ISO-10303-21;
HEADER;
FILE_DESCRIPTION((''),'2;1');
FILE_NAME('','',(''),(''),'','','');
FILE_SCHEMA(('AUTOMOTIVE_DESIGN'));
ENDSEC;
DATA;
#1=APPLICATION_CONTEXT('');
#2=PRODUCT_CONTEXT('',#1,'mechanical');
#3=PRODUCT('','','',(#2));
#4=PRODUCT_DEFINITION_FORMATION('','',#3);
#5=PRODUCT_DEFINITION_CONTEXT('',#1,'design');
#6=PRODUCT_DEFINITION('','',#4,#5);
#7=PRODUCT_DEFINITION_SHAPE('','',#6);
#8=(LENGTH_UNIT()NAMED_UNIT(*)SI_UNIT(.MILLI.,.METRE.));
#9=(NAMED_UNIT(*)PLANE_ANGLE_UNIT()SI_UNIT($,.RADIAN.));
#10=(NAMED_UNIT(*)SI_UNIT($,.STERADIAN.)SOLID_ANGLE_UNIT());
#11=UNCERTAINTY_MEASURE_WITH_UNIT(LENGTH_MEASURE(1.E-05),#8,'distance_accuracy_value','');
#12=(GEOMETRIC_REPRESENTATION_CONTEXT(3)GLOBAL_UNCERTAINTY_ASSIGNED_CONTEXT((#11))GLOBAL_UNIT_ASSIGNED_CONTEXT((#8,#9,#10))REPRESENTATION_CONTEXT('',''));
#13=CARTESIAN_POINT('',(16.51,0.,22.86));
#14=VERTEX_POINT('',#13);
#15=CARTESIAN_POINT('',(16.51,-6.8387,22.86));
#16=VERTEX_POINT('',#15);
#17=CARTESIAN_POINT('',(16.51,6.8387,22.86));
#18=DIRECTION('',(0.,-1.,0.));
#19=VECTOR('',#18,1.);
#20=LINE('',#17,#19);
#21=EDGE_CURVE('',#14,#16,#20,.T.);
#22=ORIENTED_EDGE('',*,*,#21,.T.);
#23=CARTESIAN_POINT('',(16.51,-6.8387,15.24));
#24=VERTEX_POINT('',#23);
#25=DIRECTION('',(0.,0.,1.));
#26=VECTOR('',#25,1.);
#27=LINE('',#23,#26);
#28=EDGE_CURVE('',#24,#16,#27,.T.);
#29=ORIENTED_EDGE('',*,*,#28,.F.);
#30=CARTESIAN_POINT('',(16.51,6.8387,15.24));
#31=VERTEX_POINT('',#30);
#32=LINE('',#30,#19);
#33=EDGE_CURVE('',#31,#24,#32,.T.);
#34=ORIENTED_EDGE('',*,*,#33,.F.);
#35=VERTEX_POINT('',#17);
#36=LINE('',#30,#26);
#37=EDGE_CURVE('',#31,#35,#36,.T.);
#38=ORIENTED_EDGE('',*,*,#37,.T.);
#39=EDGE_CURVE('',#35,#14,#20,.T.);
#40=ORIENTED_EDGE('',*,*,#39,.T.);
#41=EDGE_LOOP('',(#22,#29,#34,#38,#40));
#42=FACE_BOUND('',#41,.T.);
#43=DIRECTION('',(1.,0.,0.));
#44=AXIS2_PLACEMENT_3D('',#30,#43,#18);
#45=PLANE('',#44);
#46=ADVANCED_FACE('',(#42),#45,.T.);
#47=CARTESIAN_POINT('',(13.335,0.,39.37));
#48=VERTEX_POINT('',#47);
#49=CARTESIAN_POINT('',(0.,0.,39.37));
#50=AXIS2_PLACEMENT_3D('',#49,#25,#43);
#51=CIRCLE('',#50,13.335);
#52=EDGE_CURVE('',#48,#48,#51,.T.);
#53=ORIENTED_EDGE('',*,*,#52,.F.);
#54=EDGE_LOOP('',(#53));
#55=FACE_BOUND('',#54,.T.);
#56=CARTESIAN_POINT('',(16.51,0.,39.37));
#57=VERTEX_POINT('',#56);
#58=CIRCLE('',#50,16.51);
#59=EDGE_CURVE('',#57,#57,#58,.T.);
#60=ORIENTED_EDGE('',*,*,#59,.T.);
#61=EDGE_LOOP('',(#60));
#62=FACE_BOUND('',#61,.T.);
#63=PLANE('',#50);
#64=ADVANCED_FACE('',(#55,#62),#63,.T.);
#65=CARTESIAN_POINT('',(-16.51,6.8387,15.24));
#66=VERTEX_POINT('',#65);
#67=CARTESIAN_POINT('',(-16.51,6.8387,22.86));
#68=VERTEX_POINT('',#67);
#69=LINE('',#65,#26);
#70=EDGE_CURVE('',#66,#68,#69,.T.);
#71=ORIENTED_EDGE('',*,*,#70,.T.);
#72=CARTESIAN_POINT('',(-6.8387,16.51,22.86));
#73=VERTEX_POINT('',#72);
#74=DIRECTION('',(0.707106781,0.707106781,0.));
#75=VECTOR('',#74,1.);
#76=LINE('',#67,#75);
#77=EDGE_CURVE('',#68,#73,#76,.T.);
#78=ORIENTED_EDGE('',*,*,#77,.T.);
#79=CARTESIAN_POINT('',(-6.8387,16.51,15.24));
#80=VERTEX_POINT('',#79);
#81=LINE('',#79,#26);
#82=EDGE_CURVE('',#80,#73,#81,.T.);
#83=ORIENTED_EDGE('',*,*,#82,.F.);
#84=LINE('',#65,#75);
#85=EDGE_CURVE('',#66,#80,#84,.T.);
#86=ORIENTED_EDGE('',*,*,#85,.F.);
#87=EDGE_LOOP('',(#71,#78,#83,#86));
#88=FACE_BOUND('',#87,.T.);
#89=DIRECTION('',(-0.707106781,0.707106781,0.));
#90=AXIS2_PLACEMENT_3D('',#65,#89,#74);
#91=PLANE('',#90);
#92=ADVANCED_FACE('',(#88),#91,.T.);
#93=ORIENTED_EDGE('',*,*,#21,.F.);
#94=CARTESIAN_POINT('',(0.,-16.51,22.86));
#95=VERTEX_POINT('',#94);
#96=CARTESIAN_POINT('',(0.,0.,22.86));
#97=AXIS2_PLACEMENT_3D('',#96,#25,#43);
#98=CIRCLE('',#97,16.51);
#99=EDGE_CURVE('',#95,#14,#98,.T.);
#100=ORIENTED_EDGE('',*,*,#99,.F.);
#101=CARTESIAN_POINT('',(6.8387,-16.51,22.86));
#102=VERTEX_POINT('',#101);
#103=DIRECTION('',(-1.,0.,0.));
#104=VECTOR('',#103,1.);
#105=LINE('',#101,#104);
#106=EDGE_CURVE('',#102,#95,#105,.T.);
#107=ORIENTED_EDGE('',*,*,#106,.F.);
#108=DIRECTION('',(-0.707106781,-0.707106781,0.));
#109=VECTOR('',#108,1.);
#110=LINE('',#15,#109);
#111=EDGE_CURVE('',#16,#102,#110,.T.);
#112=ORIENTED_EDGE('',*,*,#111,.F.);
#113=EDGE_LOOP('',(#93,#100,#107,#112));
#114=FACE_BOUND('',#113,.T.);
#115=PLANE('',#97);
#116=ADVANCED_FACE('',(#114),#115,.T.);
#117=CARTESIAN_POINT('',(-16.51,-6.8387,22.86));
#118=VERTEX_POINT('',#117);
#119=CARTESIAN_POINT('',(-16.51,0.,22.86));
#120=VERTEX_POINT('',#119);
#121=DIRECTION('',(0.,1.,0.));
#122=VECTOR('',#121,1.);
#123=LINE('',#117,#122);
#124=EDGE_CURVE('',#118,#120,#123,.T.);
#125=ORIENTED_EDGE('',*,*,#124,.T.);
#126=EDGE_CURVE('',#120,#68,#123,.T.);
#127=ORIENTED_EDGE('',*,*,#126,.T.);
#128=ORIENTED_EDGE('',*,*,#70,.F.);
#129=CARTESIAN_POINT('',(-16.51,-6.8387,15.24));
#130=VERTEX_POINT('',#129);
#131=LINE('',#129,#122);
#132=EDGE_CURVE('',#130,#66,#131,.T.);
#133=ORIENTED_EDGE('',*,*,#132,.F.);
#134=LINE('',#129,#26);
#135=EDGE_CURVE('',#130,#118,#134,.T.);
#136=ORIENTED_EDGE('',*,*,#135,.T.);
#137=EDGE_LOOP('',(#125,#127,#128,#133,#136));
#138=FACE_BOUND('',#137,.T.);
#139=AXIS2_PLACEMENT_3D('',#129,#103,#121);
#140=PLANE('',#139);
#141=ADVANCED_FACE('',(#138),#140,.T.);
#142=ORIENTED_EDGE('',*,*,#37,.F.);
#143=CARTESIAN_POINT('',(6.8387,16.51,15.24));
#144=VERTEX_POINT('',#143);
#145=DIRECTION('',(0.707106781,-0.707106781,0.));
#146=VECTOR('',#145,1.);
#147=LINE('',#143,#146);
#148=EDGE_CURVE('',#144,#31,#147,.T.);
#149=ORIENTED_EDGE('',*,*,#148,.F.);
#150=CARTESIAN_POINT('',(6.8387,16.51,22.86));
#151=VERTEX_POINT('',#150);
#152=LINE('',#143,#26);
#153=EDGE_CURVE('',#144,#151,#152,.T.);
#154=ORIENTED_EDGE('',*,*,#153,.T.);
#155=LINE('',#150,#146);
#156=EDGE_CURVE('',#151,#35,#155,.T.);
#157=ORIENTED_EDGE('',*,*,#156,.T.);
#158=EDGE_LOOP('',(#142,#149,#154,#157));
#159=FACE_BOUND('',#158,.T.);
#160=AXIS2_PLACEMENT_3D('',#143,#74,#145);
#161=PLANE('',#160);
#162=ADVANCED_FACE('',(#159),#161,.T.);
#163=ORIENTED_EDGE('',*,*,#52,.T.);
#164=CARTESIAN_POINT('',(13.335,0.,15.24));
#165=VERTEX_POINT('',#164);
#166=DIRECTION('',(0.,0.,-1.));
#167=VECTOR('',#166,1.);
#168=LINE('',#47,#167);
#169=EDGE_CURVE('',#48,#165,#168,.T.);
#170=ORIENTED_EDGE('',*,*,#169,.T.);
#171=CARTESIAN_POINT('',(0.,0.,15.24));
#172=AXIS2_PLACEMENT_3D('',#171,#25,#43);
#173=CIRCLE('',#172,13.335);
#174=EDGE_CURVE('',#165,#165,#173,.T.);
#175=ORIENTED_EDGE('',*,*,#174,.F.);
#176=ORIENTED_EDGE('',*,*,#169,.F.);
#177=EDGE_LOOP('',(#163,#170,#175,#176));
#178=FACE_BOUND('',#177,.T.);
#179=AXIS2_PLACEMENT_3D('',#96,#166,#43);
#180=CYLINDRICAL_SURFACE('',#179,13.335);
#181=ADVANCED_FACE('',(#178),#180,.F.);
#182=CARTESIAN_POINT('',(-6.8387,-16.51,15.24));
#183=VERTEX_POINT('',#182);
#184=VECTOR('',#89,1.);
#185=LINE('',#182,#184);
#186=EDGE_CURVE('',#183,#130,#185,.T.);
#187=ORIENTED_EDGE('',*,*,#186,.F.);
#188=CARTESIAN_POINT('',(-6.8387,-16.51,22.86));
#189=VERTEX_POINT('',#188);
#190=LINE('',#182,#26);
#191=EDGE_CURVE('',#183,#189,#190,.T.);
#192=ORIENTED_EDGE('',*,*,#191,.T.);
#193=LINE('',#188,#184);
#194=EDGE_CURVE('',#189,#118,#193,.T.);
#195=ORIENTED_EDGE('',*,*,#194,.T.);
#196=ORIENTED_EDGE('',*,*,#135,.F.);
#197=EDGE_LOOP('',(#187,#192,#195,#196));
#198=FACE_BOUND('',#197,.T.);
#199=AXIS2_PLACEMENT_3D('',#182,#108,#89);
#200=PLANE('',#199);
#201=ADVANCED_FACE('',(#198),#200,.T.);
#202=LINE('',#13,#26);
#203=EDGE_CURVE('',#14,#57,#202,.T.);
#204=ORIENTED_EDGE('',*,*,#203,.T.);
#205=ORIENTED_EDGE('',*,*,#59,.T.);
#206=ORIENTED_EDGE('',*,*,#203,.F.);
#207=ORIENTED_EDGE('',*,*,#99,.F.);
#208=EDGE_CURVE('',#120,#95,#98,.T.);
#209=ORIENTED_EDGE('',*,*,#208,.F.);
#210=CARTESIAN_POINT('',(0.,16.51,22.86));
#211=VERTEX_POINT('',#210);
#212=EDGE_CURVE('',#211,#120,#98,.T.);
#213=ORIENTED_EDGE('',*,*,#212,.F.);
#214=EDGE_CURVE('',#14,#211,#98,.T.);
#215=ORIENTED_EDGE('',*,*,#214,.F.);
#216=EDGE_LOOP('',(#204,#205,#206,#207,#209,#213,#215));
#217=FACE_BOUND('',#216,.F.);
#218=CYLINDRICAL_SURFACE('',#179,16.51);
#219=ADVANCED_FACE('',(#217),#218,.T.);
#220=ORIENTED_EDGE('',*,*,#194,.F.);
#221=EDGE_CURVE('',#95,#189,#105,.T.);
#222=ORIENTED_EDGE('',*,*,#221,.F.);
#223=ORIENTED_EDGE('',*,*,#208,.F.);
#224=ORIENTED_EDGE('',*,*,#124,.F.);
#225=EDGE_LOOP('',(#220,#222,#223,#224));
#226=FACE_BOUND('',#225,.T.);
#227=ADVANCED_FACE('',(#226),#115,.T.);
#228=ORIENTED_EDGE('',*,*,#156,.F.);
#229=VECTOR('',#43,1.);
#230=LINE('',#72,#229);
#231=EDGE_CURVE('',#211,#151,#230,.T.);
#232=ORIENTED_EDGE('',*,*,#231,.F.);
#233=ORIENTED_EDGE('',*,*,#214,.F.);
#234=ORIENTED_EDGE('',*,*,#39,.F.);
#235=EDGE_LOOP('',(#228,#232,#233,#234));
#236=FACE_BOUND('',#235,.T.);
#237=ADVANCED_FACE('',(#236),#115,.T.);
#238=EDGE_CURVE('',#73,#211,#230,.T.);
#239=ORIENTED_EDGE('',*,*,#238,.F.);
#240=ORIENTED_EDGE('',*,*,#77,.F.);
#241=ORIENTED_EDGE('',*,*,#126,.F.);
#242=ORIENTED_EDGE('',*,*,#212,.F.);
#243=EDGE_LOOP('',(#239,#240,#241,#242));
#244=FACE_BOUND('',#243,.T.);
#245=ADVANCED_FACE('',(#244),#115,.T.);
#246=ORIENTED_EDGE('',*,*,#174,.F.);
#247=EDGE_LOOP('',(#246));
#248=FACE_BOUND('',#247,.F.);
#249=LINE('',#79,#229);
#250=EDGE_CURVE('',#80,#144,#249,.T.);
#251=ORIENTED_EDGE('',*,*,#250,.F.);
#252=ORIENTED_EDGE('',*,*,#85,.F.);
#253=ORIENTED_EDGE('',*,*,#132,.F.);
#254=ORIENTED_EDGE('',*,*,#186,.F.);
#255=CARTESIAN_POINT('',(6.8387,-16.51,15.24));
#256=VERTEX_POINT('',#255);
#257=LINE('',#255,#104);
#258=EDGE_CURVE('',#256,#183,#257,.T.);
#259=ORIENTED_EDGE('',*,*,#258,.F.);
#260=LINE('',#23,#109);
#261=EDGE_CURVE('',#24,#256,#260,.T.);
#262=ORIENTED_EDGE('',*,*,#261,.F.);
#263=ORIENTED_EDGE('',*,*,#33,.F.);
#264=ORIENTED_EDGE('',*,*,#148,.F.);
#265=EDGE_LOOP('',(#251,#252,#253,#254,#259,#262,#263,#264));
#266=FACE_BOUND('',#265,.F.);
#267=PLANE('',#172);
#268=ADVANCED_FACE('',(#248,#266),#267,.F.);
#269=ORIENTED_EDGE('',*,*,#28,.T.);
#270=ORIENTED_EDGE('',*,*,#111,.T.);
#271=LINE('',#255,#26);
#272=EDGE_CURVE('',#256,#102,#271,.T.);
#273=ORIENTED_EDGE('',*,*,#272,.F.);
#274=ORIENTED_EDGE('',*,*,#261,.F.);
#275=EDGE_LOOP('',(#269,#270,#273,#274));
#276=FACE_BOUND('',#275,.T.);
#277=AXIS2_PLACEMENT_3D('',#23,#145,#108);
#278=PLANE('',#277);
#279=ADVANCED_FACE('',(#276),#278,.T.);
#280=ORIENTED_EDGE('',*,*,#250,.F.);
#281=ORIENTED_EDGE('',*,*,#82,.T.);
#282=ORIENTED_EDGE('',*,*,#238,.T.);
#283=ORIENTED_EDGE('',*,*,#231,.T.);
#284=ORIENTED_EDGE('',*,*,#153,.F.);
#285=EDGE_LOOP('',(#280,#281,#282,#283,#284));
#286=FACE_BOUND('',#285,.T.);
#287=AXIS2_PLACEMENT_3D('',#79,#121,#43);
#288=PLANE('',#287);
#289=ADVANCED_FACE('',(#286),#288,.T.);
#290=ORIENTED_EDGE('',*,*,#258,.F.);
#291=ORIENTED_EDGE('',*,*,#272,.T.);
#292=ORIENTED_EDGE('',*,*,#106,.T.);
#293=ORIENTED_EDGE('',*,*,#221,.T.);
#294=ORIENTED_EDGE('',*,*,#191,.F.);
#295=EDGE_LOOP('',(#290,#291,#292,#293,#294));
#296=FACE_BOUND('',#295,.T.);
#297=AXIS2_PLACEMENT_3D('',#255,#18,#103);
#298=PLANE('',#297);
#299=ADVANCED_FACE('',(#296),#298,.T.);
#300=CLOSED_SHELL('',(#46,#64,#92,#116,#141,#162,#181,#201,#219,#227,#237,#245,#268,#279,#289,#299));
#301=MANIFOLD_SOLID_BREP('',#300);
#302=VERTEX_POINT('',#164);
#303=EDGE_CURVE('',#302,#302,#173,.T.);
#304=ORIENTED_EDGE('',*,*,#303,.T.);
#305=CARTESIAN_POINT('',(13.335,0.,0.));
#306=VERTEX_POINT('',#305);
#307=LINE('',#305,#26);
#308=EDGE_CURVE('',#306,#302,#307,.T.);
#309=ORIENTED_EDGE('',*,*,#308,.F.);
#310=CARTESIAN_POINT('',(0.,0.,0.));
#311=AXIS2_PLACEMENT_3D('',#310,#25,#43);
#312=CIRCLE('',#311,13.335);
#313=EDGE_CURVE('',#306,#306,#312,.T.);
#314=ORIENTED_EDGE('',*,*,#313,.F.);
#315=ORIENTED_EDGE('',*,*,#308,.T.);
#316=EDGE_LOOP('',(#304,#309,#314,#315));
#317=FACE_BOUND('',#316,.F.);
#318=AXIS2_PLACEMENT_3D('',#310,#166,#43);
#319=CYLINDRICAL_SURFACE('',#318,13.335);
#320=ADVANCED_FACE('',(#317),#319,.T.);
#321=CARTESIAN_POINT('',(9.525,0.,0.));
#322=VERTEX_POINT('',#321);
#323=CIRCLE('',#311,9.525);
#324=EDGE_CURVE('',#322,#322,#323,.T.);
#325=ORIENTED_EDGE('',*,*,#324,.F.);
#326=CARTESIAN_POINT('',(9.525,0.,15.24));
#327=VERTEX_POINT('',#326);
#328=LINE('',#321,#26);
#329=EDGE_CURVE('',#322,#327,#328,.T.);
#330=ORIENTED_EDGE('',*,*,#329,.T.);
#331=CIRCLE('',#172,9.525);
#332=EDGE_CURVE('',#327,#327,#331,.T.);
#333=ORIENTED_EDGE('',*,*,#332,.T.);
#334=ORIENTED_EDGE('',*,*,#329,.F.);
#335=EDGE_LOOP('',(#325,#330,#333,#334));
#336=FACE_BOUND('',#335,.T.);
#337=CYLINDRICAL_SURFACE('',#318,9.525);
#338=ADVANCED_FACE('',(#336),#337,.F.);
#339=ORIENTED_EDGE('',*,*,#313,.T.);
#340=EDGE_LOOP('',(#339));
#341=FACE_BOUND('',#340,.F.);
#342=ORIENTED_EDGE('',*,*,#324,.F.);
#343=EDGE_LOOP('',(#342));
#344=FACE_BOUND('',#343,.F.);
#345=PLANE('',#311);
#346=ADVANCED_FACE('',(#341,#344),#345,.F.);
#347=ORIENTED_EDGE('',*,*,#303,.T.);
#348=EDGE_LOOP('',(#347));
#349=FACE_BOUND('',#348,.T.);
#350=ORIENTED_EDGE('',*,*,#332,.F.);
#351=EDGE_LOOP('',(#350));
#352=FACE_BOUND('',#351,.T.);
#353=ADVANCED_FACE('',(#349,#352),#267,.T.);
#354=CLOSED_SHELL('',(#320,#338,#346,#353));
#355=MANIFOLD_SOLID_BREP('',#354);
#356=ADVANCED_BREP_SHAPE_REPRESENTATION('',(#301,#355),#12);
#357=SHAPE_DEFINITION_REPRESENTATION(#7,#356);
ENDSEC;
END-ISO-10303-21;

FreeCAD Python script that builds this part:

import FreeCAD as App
import Part
import Sketcher
from FreeCAD import Vector
Q = App.Units.Quantity


def add_polygon(sketch, points):
    """Adds a closed chain of lines whose ends are joined by coincident constraints."""
    first, n = sketch.GeometryCount, len(points)
    for a, b in zip(points, points[1:] + points[:1]):
        sketch.addGeometry(Part.LineSegment(App.Vector(*a, 0), App.Vector(*b, 0)), False)
    for i in range(n):
        sketch.addConstraint(Sketcher.Constraint("Coincident", first + i, 2, first + (i + 1) % n, 1))

doc = App.newDocument("Part")
body = doc.addObject("PartDesign::Body", "Body")
body.AllowCompound = True

# Sketch on XY plane
sketch1 = body.newObject("Sketcher::SketchObject", "Sketch")
sketch1.AttachmentSupport = (doc.getObject("XY_Plane"), [""])
sketch1.MapMode = "FlatFace"
sketch1.addGeometry([
    Part.Circle(Vector(0, 0, 0), Vector(0, 0, 1), 13.335),
    Part.Circle(Vector(0, 0, 0), Vector(0, 0, 1), 9.525),
], False)
sketch1.addConstraint([
    Sketcher.Constraint("Coincident", 0, 3, -1, 1),
    Sketcher.Constraint("Coincident", 1, 3, -1, 1),
    Sketcher.Constraint("Diameter", 0, Q("1.05 in")),
    Sketcher.Constraint("Diameter", 1, Q("0.75 in")),
])
pad1 = body.newObject("PartDesign::Pad", "Pad")
pad1.Profile = sketch1
pad1.Length = Q("0.6 in")

# Sketch on XY plane
sketch2 = body.newObject("Sketcher::SketchObject", "Sketch001")
sketch2.AttachmentSupport = (doc.getObject("XY_Plane"), [""])
sketch2.MapMode = "FlatFace"
sketch2.AttachmentOffset = App.Placement(Vector(0, 0, 0.6 * 25.4), App.Rotation())
add_polygon(sketch2, [(6.8387, -16.51), (16.51, -6.8387), (16.51, 6.8387), (6.8387, 16.51), (-6.8387, 16.51), (-16.51, 6.8387), (-16.51, -6.8387), (-6.8387, -16.51)])  # lines 0-7
sketch2.addGeometry(Part.Circle(Vector(0, 0, 0), Vector(0, 0, 1), 13.335), False)  # 8
sketch2.addConstraint([
    Sketcher.Constraint("Vertical", 1),
    Sketcher.Constraint("Horizontal", 3),
    Sketcher.Constraint("Vertical", 5),
    Sketcher.Constraint("Horizontal", 7),
    Sketcher.Constraint("Coincident", 8, 3, -1, 1),
    Sketcher.Constraint("Symmetric", 0, 2, 4, 2, -1, 1),
    Sketcher.Constraint("Symmetric", 2, 2, 6, 2, -1, 1),
    Sketcher.Constraint("Perpendicular", 0, 2),
    Sketcher.Constraint("Perpendicular", 2, 4),
    Sketcher.Constraint("Perpendicular", 4, 6),
    Sketcher.Constraint("Horizontal", 1, 2, 4, 2),
    Sketcher.Constraint("Vertical", 3, 2, 6, 2),
    Sketcher.Constraint("Equal", 7, 1),
    Sketcher.Constraint("DistanceX", 4, 2, 1, 2, Q("1.3 in")),
    Sketcher.Constraint("Diameter", 8, Q("1.05 in")),
    Sketcher.Constraint("DistanceX", 3, 2, 3, 1, 13.6774),
])
pad2 = body.newObject("PartDesign::Pad", "Pad001")
pad2.Profile = sketch2
pad2.Length = Q("0.3 in")

# Sketch on XY plane
sketch3 = body.newObject("Sketcher::SketchObject", "Sketch002")
sketch3.AttachmentSupport = (doc.getObject("XY_Plane"), [""])
sketch3.MapMode = "FlatFace"
sketch3.AttachmentOffset = App.Placement(Vector(0, 0, 0.9 * 25.4), App.Rotation())
sketch3.addGeometry([
    Part.Circle(Vector(0, 0, 0), Vector(0, 0, 1), 16.51),
    Part.Circle(Vector(0, 0, 0), Vector(0, 0, 1), 13.335),
], False)
sketch3.addConstraint([
    Sketcher.Constraint("Coincident", 0, 3, -1, 1),
    Sketcher.Constraint("Coincident", 1, 3, -1, 1),
    Sketcher.Constraint("Diameter", 0, Q("1.3 in")),
    Sketcher.Constraint("Diameter", 1, Q("1.05 in")),
])
pad3 = body.newObject("PartDesign::Pad", "Pad002")
pad3.Profile = sketch3
pad3.Length = Q("0.65 in")

doc.recompute()
